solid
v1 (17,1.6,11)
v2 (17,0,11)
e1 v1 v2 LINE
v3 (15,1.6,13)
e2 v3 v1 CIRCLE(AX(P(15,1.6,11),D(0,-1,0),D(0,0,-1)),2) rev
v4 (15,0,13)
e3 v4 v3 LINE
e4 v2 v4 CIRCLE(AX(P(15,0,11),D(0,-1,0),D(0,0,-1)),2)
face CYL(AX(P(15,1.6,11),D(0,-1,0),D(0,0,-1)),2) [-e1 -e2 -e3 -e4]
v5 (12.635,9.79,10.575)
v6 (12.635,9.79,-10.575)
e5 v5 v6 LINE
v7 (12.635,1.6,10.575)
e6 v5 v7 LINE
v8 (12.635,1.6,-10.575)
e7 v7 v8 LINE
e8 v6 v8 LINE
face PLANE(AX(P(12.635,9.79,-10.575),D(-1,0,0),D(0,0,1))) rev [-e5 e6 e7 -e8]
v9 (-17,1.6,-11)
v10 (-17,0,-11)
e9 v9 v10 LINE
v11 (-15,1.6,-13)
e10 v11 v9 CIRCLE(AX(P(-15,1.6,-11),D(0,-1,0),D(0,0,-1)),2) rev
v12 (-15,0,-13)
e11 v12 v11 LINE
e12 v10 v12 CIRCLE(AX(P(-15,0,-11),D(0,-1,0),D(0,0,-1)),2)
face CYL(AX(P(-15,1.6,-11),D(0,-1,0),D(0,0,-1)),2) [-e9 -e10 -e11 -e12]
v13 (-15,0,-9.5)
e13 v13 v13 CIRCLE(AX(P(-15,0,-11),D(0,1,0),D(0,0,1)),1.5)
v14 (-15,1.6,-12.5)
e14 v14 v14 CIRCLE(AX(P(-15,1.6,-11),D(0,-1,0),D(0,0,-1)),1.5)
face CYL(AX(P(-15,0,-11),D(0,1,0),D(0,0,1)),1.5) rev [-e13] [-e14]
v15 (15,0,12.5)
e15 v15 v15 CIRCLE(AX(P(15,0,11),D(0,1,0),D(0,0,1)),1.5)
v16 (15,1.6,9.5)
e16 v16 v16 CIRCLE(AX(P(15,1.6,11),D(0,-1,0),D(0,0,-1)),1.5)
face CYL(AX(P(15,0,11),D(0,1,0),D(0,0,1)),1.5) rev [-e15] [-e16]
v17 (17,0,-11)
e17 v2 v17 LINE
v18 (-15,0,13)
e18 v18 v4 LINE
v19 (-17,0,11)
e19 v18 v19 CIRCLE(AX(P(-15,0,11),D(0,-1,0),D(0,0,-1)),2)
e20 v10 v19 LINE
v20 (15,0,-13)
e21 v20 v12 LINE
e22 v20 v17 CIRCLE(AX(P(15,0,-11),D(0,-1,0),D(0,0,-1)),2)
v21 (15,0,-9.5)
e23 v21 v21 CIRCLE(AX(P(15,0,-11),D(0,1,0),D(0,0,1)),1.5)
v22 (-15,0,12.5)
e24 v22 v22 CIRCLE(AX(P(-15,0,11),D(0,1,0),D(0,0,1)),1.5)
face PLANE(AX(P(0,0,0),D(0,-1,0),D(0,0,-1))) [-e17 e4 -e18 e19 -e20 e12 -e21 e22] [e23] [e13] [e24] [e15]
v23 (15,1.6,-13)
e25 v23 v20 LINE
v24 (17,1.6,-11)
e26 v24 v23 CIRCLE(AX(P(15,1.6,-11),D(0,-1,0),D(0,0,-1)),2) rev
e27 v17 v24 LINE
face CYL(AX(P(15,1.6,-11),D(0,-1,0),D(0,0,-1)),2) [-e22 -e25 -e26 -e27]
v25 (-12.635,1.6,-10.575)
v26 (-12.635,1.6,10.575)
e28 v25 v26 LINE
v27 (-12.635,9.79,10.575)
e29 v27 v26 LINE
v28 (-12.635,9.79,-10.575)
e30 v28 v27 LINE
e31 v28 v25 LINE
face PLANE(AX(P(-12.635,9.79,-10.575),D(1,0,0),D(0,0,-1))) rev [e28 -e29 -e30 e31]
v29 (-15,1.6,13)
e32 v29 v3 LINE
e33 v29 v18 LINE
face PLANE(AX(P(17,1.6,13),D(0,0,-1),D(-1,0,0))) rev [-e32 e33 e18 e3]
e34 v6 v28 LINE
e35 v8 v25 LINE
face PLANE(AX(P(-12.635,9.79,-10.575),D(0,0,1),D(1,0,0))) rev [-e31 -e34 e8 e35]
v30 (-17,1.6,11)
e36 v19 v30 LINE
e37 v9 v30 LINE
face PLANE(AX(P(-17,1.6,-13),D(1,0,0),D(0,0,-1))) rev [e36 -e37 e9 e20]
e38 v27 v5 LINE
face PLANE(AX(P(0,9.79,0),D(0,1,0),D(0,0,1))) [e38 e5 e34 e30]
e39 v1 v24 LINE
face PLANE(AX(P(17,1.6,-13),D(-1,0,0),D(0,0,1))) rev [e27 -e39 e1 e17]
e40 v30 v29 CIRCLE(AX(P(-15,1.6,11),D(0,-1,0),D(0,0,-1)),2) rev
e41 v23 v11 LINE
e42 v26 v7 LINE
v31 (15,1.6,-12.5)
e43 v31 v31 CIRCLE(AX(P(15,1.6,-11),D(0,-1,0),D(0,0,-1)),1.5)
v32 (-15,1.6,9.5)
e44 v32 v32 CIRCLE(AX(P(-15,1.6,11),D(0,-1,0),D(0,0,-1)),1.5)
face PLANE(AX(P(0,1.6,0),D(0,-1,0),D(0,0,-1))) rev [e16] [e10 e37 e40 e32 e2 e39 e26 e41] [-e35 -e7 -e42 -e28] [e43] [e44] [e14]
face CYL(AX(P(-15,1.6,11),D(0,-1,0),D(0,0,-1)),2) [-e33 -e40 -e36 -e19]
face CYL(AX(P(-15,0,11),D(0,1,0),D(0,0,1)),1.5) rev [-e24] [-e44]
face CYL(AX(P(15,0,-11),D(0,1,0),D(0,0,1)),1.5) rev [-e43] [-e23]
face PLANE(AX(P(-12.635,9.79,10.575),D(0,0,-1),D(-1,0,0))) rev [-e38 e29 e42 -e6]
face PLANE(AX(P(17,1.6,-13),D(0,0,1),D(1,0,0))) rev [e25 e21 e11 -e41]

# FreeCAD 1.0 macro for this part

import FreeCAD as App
import Part
import Sketcher
from FreeCAD import Vector
Q = App.Units.Quantity


def edges_at(feature, points):
    """Names of the edges that pass closest to the given points."""
    edges = feature.Shape.Edges
    near = lambda p: min(range(len(edges)), key=lambda i: edges[i].distToShape(Part.Vertex(*p))[0])
    return sorted({f"Edge{near(p) + 1}" for p in points})


def add_polygon(sketch, points):
    """Adds a closed chain of lines whose ends are joined by coincident constraints."""
    first, n = sketch.GeometryCount, len(points)
    for a, b in zip(points, points[1:] + points[:1]):
        sketch.addGeometry(Part.LineSegment(App.Vector(*a, 0), App.Vector(*b, 0)), False)
    for i in range(n):
        sketch.addConstraint(Sketcher.Constraint("Coincident", first + i, 2, first + (i + 1) % n, 1))

doc = App.newDocument("Part")
body = doc.addObject("PartDesign::Body", "Body")

# Sketch on XZ plane
sketch1 = body.newObject("Sketcher::SketchObject", "Sketch")
sketch1.AttachmentSupport = (doc.getObject("XZ_Plane"), [""])
sketch1.MapMode = "FlatFace"
add_polygon(sketch1, [(-17, -13), (-17, 13), (17, 13), (17, -13)])  # lines 0-3
sketch1.addConstraint([
    Sketcher.Constraint("Vertical", 0),
    Sketcher.Constraint("Horizontal", 1),
    Sketcher.Constraint("Vertical", 2),
    Sketcher.Constraint("Horizontal", 3),
    Sketcher.Constraint("Symmetric", 0, 2, 2, 2, -1, 1),
    Sketcher.Constraint("DistanceX", 1, 1, 1, 2, Q("34 mm")),
    Sketcher.Constraint("DistanceY", 0, 1, 0, 2, Q("26 mm")),
])
pad1 = body.newObject("PartDesign::Pad", "Pad")
pad1.Profile = sketch1
pad1.Length = 1.6
pad1.Reversed = True
doc.recompute()

fillet = body.newObject("PartDesign::Fillet", "Fillet")
fillet.Base = (pad1, edges_at(pad1, [
    (-17, 0.8, -13),
    (17, 0.8, -13),
    (17, 0.8, 13),
    (-17, 0.8, 13),
]))
fillet.Radius = 2

# Sketch on XZ plane
sketch2 = body.newObject("Sketcher::SketchObject", "Sketch001")
sketch2.AttachmentSupport = (doc.getObject("XZ_Plane"), [""])
sketch2.MapMode = "FlatFace"
sketch2.AttachmentOffset = App.Placement(Vector(0, 0, -1.6), App.Rotation())
add_polygon(sketch2, [(-12.635, -10.575), (-12.635, 10.575), (12.635, 10.575), (12.635, -10.575)])  # lines 0-3
sketch2.addConstraint([
    Sketcher.Constraint("Vertical", 0),
    Sketcher.Constraint("Horizontal", 1),
    Sketcher.Constraint("Vertical", 2),
    Sketcher.Constraint("Horizontal", 3),
    Sketcher.Constraint("Symmetric", 0, 2, 2, 2, -1, 1),
    Sketcher.Constraint("DistanceX", 1, 1, 1, 2, Q("25.27 mm")),
    Sketcher.Constraint("DistanceY", 0, 1, 0, 2, Q("21.15 mm")),
])
pad2 = body.newObject("PartDesign::Pad", "Pad001")
pad2.Profile = sketch2
pad2.Length = 8.19
pad2.Reversed = True

# Sketch on XZ plane
sketch3 = body.newObject("Sketcher::SketchObject", "Sketch002")
sketch3.AttachmentSupport = (doc.getObject("XZ_Plane"), [""])
sketch3.MapMode = "FlatFace"
sketch3.AttachmentOffset = App.Placement(Vector(0, 0, -1.6), App.Rotation())
sketch3.addGeometry([
    Part.Circle(Vector(15, -11, 0), Vector(0, 0, 1), 1.5),
    Part.Circle(Vector(15, 11, 0), Vector(0, 0, 1), 1.5),
    Part.Circle(Vector(-15, 11, 0), Vector(0, 0, 1), 1.5),
    Part.Circle(Vector(-15, -11, 0), Vector(0, 0, 1), 1.5),
], False)
sketch3.addConstraint([
    Sketcher.Constraint("Equal", 0, 1),
    Sketcher.Constraint("Equal", 1, 2),
    Sketcher.Constraint("Equal", 2, 3),
    Sketcher.Constraint("Symmetric", 0, 3, 2, 3, -1, 1),
    Sketcher.Constraint("Symmetric", 1, 3, 3, 3, -1, 1),
    Sketcher.Constraint("Symmetric", 1, 3, 2, 3, -2),
    Sketcher.Constraint("Diameter", 0, Q("3 mm")),
    Sketcher.Constraint("DistanceX", -1, 1, 0, 3, Q("15 mm")),
    Sketcher.Constraint("DistanceY", 0, 3, -1, 1, Q("11 mm")),
])
pocket1 = body.newObject("PartDesign::Pocket", "Pocket")
pocket1.Profile = sketch3
pocket1.Type = "ThroughAll"
pocket1.Midplane = True

doc.recompute()
